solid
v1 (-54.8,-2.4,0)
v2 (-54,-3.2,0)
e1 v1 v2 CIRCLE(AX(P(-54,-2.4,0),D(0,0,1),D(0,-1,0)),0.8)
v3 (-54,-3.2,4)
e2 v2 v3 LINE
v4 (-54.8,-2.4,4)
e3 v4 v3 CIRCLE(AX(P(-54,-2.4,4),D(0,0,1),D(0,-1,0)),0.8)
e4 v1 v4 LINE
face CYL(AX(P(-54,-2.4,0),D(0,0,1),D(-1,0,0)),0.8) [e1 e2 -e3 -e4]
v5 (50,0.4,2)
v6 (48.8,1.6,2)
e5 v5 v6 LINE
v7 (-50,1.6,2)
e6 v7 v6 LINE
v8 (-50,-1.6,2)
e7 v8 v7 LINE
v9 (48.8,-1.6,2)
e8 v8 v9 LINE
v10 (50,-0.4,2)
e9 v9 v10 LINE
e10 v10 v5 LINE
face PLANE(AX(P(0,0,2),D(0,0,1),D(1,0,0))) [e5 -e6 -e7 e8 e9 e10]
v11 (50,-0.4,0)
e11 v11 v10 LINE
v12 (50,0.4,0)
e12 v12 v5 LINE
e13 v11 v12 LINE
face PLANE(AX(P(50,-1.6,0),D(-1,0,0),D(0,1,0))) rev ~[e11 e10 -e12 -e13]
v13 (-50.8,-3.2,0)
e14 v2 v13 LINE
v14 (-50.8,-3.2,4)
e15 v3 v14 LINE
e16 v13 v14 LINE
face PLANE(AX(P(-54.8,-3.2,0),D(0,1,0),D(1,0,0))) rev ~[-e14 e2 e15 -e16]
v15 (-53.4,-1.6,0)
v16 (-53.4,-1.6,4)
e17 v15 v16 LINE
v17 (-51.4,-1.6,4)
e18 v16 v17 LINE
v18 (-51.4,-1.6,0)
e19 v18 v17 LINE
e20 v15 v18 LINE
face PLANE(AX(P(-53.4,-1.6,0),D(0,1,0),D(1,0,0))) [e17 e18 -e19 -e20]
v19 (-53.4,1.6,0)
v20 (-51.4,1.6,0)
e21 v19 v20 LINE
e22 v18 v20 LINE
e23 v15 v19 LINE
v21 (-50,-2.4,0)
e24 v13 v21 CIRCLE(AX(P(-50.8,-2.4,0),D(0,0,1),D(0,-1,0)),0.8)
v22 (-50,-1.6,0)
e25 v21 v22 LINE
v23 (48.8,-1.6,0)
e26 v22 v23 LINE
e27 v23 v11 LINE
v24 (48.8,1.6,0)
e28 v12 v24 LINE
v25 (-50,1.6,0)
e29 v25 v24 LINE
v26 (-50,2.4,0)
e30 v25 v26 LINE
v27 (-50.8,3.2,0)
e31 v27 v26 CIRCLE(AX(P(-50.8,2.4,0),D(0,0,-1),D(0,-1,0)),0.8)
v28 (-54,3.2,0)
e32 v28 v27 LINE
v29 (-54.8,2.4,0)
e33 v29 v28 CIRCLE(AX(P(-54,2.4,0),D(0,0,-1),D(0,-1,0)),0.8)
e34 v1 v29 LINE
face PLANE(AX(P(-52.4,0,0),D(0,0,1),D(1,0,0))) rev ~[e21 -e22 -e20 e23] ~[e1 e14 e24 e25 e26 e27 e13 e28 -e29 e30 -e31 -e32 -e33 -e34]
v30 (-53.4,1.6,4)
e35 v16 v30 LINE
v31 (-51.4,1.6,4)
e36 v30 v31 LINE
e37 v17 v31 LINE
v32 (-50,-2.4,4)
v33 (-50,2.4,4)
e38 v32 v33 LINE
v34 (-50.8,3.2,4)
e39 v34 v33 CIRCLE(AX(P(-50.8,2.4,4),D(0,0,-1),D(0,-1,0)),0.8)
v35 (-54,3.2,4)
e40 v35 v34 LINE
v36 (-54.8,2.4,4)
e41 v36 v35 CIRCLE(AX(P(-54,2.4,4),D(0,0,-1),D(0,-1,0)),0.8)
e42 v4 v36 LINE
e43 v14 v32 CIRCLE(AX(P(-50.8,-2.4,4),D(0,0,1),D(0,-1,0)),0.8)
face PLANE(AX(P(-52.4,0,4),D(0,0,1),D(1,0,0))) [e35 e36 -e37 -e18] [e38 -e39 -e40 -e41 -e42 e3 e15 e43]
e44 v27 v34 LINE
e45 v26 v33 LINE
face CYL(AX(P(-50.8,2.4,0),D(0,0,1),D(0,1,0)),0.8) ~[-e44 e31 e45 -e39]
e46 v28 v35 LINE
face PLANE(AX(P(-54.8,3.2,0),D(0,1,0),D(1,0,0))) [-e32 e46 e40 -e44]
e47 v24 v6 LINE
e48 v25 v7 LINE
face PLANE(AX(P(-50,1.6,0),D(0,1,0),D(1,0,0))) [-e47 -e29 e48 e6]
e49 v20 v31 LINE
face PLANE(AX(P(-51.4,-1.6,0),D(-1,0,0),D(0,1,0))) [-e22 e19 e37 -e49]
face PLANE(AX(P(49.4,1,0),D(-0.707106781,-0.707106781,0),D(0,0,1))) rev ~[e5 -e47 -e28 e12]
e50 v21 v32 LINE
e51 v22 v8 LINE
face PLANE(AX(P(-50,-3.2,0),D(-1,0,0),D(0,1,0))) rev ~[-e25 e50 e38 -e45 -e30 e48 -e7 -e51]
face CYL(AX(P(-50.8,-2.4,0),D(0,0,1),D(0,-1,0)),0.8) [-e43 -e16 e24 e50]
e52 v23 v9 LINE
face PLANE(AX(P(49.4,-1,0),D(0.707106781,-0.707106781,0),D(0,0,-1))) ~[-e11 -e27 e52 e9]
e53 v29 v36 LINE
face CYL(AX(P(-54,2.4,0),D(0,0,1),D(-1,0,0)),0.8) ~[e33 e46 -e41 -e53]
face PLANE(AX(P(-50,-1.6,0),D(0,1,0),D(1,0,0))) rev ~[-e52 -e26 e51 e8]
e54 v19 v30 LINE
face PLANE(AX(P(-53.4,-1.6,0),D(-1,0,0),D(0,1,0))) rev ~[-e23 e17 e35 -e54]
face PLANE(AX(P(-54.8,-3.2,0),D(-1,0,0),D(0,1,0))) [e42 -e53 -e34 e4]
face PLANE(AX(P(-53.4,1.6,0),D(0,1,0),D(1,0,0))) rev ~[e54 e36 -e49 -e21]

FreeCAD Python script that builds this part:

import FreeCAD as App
import Part
import Sketcher
from FreeCAD import Vector
Q = App.Units.Quantity


def edges_at(feature, points):
    """Names of the edges that pass closest to the given points."""
    edges = feature.Shape.Edges
    near = lambda p: min(range(len(edges)), key=lambda i: edges[i].distToShape(Part.Vertex(*p))[0])
    return sorted({f"Edge{near(p) + 1}" for p in points})


def add_polygon(sketch, points):
    """Adds a closed chain of lines whose ends are joined by coincident constraints."""
    first, n = sketch.GeometryCount, len(points)
    for a, b in zip(points, points[1:] + points[:1]):
        sketch.addGeometry(Part.LineSegment(App.Vector(*a, 0), App.Vector(*b, 0)), False)
    for i in range(n):
        sketch.addConstraint(Sketcher.Constraint("Coincident", first + i, 2, first + (i + 1) % n, 1))

doc = App.newDocument("Part")
body = doc.addObject("PartDesign::Body", "Body")

# Sketch on XY plane
sketch1 = body.newObject("Sketcher::SketchObject", "Sketch")
sketch1.AttachmentSupport = (doc.getObject("XY_Plane"), [""])
sketch1.MapMode = "FlatFace"
add_polygon(sketch1, [(-50, 1.6), (-50, -1.6), (50, -1.6), (50, 1.6)])  # lines 0-3
sketch1.addConstraint([
    Sketcher.Constraint("Vertical", 0),
    Sketcher.Constraint("Horizontal", 1),
    Sketcher.Constraint("Vertical", 2),
    Sketcher.Constraint("Horizontal", 3),
    Sketcher.Constraint("Symmetric", 0, 2, 2, 2, -1, 1),
    Sketcher.Constraint("DistanceX", 1, 1, 1, 2, Q("100 mm")),
    Sketcher.Constraint("DistanceY", 0, 2, 0, 1, Q("3.2 mm")),
])
pad1 = body.newObject("PartDesign::Pad", "Pad")
pad1.Profile = sketch1
pad1.Length = 2
doc.recompute()

chamfer = body.newObject("PartDesign::Chamfer", "Chamfer")
chamfer.Base = (pad1, edges_at(pad1, [(50, 1.6, 1), (50, -1.6, 1)]))
chamfer.Size = 1.2

# Sketch on XY plane
sketch2 = body.newObject("Sketcher::SketchObject", "Sketch001")
sketch2.AttachmentSupport = (doc.getObject("XY_Plane"), [""])
sketch2.MapMode = "FlatFace"
add_polygon(sketch2, [(-54.8, 3.2), (-54.8, -3.2), (-50, -3.2), (-50, 3.2)])  # lines 0-3
add_polygon(sketch2, [(-51.4, -1.6), (-53.4, -1.6), (-53.4, 1.6), (-51.4, 1.6)])  # lines 4-7
sketch2.addConstraint([
    Sketcher.Constraint("Vertical", 0),
    Sketcher.Constraint("Horizontal", 1),
    Sketcher.Constraint("Vertical", 2),
    Sketcher.Constraint("Horizontal", 3),
    Sketcher.Constraint("Horizontal", 4),
    Sketcher.Constraint("Vertical", 5),
    Sketcher.Constraint("Horizontal", 6),
    Sketcher.Constraint("Vertical", 7),
    Sketcher.Constraint("DistanceX", 4, 2, 4, 1, Q("2 mm")),
    Sketcher.Constraint("DistanceX", 1, 1, 1, 2, Q("4.8 mm")),
    Sketcher.Constraint("DistanceY", 0, 2, 0, 1, Q("6.4 mm")),
    Sketcher.Constraint("DistanceY", 5, 1, 5, 2, Q("3.2 mm")),
    Sketcher.Constraint("DistanceX", 1, 2, -1, 1, Q("50 mm")),
    Sketcher.Constraint("DistanceY", 0, 2, -1, 1, Q("3.2 mm")),
    Sketcher.Constraint("DistanceX", 4, 2, -1, 1, Q("53.4 mm")),
    Sketcher.Constraint("DistanceY", 4, 2, -1, 1, Q("1.6 mm")),
])
pad2 = body.newObject("PartDesign::Pad", "Pad001")
pad2.Profile = sketch2
pad2.Length = 4
doc.recompute()

fillet = body.newObject("PartDesign::Fillet", "Fillet")
fillet.Base = (pad2, edges_at(pad2, [
    (-54.8, 3.2, 2),
    (-50, 3.2, 2),
    (-50, -3.2, 2),
    (-54.8, -3.2, 2),
]))
fillet.Radius = 0.8

doc.recompute()
